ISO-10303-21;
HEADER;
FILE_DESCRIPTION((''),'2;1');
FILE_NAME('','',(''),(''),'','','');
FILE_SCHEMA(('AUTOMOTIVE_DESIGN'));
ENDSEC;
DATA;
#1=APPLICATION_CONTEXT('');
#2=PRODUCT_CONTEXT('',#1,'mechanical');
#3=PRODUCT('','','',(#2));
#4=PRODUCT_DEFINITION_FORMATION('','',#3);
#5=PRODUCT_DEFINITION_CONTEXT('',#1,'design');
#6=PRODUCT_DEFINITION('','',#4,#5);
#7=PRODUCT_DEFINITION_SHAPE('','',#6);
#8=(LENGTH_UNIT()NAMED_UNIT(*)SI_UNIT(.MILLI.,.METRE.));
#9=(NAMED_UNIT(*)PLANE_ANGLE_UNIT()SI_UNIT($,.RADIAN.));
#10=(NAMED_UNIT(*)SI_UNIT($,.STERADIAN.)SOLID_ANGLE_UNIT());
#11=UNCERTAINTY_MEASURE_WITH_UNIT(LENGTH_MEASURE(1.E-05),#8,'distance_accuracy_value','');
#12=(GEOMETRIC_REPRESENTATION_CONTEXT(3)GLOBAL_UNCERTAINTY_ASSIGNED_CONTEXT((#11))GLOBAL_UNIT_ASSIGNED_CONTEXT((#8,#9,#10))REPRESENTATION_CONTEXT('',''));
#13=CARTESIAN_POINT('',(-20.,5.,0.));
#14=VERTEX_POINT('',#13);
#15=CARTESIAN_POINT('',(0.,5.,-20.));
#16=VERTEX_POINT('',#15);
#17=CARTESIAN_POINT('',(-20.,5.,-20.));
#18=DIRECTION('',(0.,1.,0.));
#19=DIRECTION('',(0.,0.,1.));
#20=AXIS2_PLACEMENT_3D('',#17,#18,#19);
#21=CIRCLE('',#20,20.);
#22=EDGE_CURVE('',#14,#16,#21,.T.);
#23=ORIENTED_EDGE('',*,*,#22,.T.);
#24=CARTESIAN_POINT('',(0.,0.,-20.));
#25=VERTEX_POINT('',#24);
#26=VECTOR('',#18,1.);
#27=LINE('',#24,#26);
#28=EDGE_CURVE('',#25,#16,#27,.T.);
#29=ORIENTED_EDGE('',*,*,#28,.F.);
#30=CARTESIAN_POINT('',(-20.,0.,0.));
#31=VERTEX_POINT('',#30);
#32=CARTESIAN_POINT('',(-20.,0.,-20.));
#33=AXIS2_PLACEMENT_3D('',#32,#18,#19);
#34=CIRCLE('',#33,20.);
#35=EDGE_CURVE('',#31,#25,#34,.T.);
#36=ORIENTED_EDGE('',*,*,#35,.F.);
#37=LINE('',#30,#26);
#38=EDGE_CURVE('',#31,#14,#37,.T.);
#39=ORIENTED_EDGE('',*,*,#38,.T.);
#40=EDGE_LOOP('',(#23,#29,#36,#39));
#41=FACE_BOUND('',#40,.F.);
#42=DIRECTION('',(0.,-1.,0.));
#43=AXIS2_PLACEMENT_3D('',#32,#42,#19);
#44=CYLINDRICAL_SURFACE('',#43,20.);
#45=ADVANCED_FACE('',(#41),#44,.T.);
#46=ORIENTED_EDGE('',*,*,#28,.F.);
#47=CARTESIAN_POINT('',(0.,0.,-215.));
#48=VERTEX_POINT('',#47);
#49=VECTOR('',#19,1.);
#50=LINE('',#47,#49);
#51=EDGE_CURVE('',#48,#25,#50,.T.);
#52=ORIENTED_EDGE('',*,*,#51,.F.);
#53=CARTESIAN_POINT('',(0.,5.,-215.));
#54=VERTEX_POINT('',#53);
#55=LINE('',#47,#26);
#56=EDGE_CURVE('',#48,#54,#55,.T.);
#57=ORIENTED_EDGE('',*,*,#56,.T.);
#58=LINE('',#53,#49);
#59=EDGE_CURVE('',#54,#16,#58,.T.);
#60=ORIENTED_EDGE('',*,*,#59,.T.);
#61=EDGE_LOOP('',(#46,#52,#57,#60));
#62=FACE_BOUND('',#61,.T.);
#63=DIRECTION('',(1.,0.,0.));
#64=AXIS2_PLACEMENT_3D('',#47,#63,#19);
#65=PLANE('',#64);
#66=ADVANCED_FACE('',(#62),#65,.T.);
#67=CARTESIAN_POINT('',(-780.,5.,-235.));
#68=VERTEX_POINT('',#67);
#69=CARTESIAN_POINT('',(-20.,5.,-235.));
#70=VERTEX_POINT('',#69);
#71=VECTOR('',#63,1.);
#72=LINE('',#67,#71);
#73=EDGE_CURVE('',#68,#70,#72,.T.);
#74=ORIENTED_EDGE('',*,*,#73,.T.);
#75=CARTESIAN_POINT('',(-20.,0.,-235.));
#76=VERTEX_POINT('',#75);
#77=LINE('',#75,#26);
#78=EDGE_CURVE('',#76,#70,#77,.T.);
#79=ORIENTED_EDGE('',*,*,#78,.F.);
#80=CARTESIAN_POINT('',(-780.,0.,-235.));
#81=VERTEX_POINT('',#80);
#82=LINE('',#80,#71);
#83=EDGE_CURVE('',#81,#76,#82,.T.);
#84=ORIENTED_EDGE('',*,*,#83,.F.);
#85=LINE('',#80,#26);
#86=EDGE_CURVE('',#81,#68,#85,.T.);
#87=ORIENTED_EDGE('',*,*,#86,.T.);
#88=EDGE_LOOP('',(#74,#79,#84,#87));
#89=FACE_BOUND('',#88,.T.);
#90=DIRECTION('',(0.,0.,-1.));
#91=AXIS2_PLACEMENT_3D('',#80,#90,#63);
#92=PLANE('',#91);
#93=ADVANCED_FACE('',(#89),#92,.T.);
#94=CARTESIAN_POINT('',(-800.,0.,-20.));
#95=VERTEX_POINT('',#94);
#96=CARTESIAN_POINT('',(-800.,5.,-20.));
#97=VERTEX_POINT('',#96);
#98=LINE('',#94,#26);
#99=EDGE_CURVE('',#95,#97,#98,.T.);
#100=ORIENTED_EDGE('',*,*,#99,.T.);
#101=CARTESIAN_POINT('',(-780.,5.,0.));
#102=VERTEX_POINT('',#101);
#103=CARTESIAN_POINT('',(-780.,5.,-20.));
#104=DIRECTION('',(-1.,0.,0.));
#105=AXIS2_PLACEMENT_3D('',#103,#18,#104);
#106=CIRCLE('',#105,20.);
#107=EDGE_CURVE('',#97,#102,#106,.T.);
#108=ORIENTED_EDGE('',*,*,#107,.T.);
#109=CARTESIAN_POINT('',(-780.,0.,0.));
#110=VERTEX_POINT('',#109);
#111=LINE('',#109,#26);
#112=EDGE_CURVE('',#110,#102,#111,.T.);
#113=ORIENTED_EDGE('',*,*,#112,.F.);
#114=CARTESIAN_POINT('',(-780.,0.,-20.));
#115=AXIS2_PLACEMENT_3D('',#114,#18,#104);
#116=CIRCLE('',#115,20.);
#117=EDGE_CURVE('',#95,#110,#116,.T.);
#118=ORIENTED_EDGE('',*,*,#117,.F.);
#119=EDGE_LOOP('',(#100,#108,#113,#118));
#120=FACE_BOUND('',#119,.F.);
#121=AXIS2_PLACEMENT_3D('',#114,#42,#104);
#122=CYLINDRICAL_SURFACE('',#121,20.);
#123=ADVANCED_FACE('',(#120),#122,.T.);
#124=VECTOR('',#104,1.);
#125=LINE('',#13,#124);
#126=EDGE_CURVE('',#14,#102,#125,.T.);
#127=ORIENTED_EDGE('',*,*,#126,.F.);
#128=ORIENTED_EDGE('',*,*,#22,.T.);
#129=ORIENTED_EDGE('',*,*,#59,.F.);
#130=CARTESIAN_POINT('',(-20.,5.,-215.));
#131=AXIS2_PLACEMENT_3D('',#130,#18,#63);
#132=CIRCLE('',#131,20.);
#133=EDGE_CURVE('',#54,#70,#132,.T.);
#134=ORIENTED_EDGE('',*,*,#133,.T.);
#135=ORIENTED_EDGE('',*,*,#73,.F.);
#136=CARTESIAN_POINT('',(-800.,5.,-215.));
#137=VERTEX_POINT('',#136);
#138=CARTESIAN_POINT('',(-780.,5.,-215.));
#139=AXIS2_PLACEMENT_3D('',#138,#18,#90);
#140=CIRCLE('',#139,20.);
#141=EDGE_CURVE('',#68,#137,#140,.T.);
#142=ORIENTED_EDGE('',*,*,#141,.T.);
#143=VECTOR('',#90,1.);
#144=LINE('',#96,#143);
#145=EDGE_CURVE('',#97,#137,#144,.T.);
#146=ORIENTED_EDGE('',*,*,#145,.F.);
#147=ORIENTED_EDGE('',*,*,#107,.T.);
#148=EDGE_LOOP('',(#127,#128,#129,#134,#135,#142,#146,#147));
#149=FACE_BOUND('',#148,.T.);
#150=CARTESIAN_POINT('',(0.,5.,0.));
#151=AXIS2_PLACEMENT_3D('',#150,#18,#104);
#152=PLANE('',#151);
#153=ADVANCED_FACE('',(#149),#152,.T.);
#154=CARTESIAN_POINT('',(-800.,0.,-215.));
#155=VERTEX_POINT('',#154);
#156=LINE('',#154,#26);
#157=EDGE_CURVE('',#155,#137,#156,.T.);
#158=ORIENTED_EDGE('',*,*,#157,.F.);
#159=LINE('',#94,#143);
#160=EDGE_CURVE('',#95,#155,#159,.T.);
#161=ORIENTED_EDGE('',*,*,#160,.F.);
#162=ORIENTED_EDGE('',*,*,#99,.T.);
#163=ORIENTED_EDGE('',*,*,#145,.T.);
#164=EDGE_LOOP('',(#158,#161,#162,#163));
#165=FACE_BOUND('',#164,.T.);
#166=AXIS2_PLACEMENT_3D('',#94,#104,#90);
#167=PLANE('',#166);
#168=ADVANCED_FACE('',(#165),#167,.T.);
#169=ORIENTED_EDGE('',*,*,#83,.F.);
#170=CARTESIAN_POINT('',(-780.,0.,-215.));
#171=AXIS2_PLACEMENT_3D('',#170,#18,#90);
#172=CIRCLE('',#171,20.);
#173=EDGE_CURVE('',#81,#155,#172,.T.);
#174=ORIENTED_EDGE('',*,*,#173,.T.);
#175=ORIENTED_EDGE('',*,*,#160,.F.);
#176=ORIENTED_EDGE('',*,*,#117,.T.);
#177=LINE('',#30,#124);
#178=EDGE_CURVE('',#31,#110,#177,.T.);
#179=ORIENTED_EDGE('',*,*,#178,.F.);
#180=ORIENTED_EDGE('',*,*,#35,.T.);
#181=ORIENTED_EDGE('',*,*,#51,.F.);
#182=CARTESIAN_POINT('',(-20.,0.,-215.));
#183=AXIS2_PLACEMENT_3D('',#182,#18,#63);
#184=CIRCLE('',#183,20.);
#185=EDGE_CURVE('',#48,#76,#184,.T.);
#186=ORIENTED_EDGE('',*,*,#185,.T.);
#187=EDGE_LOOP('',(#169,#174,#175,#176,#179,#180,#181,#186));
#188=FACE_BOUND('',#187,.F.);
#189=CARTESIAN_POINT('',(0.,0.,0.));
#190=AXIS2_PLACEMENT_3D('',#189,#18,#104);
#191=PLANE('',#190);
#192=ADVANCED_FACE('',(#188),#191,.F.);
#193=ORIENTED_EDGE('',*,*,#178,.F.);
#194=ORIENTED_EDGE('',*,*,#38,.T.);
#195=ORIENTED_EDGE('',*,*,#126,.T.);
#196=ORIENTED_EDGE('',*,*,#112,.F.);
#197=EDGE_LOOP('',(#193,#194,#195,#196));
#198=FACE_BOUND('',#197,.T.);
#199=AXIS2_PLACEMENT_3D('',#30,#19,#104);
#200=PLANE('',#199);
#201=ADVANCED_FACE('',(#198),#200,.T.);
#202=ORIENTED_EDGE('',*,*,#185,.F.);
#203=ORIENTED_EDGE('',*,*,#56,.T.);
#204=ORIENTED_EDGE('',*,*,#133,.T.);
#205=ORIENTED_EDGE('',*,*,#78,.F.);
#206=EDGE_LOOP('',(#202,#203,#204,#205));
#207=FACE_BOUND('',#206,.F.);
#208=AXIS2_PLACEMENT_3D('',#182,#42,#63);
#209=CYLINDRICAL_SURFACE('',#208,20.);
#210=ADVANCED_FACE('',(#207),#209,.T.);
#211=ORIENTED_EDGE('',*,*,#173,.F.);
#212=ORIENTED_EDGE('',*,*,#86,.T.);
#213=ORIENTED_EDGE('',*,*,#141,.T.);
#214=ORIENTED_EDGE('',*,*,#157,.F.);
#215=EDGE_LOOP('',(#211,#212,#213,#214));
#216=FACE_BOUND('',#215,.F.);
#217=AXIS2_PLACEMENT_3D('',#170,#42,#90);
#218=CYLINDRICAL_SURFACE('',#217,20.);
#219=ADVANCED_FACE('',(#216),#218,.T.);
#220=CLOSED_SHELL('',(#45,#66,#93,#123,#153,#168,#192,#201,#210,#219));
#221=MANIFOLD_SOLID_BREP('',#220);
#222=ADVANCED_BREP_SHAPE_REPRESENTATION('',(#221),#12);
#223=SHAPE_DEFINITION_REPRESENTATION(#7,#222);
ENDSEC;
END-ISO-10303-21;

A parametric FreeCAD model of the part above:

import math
import FreeCAD as App
import Part
import Sketcher

V = App.Vector

doc = App.newDocument("Part")
params = doc.addObject("Spreadsheet::Sheet", "Params")
for row, (alias, value) in enumerate([
    ("sketch1_radius", "20 mm"),
    ("pad1_length", "5 mm"),
], start=1):
    params.set(f"A{row}", alias)
    params.set(f"B{row}", "=" + value)
    params.setAlias(f"B{row}", alias)

body = doc.addObject("PartDesign::Body", "Body")

sketch1 = body.newObject("Sketcher::SketchObject", "Sketch")
sketch1.AttachmentSupport = (doc.getObject("XZ_Plane"), [""])
sketch1.MapMode = "FlatFace"
sketch1.addGeometry(Part.LineSegment(V(-780, 0, 0), V(-20, 0, 0)), False)
sketch1.addGeometry(Part.ArcOfCircle(Part.Circle(V(-20, -20, 0), V(0, 0, 1), 20), math.radians(0), math.radians(90)), False)
sketch1.addGeometry(Part.LineSegment(V(0, -20, 0), V(0, -215, 0)), False)
sketch1.addGeometry(Part.ArcOfCircle(Part.Circle(V(-20, -215, 0), V(0, 0, 1), 20), math.radians(-90), math.radians(0)), False)
sketch1.addGeometry(Part.LineSegment(V(-20, -235, 0), V(-780, -235, 0)), False)
sketch1.addGeometry(Part.ArcOfCircle(Part.Circle(V(-780, -215, 0), V(0, 0, 1), 20), math.radians(180), math.radians(270)), False)
sketch1.addGeometry(Part.LineSegment(V(-800, -215, 0), V(-800, -20, 0)), False)
sketch1.addGeometry(Part.ArcOfCircle(Part.Circle(V(-780, -20, 0), V(0, 0, 1), 20), math.radians(90), math.radians(180)), False)
sketch1.addConstraint(Sketcher.Constraint("Tangent", 0, 2, 1, 2))
sketch1.addConstraint(Sketcher.Constraint("Tangent", 1, 1, 2, 1))
sketch1.addConstraint(Sketcher.Constraint("Tangent", 2, 2, 3, 2))
sketch1.addConstraint(Sketcher.Constraint("Tangent", 3, 1, 4, 1))
sketch1.addConstraint(Sketcher.Constraint("Tangent", 4, 2, 5, 2))
sketch1.addConstraint(Sketcher.Constraint("Tangent", 5, 1, 6, 1))
sketch1.addConstraint(Sketcher.Constraint("Tangent", 6, 2, 7, 2))
sketch1.addConstraint(Sketcher.Constraint("Tangent", 7, 1, 0, 1))
sketch1.addConstraint(Sketcher.Constraint("Horizontal", 0))
sketch1.addConstraint(Sketcher.Constraint("Vertical", 2))
sketch1.addConstraint(Sketcher.Constraint("Horizontal", 4))
sketch1.addConstraint(Sketcher.Constraint("Vertical", 6))
sketch1.addConstraint(Sketcher.Constraint("Equal", 1, 3))
sketch1.addConstraint(Sketcher.Constraint("Equal", 3, 5))
sketch1.addConstraint(Sketcher.Constraint("Equal", 5, 7))
sketch1.addConstraint(Sketcher.Constraint("PointOnObject", 0, 2, -1))
sketch1.addConstraint(Sketcher.Constraint("PointOnObject", 1, 1, -2))
sketch1.addConstraint(Sketcher.Constraint("Radius", 1, 20.0))
sketch1.addConstraint(Sketcher.Constraint("DistanceY", 3, 1, -1, 1, 235.0))
sketch1.addConstraint(Sketcher.Constraint("DistanceX", 5, 1, -1, 1, 800.0))
sketch1.setExpression("Constraints[17]", "Params.sketch1_radius")
pad1 = body.newObject("PartDesign::Pad", "Pad")
pad1.Profile = sketch1
pad1.setExpression("Length", "Params.pad1_length")
pad1.Reversed = True

doc.recompute()
